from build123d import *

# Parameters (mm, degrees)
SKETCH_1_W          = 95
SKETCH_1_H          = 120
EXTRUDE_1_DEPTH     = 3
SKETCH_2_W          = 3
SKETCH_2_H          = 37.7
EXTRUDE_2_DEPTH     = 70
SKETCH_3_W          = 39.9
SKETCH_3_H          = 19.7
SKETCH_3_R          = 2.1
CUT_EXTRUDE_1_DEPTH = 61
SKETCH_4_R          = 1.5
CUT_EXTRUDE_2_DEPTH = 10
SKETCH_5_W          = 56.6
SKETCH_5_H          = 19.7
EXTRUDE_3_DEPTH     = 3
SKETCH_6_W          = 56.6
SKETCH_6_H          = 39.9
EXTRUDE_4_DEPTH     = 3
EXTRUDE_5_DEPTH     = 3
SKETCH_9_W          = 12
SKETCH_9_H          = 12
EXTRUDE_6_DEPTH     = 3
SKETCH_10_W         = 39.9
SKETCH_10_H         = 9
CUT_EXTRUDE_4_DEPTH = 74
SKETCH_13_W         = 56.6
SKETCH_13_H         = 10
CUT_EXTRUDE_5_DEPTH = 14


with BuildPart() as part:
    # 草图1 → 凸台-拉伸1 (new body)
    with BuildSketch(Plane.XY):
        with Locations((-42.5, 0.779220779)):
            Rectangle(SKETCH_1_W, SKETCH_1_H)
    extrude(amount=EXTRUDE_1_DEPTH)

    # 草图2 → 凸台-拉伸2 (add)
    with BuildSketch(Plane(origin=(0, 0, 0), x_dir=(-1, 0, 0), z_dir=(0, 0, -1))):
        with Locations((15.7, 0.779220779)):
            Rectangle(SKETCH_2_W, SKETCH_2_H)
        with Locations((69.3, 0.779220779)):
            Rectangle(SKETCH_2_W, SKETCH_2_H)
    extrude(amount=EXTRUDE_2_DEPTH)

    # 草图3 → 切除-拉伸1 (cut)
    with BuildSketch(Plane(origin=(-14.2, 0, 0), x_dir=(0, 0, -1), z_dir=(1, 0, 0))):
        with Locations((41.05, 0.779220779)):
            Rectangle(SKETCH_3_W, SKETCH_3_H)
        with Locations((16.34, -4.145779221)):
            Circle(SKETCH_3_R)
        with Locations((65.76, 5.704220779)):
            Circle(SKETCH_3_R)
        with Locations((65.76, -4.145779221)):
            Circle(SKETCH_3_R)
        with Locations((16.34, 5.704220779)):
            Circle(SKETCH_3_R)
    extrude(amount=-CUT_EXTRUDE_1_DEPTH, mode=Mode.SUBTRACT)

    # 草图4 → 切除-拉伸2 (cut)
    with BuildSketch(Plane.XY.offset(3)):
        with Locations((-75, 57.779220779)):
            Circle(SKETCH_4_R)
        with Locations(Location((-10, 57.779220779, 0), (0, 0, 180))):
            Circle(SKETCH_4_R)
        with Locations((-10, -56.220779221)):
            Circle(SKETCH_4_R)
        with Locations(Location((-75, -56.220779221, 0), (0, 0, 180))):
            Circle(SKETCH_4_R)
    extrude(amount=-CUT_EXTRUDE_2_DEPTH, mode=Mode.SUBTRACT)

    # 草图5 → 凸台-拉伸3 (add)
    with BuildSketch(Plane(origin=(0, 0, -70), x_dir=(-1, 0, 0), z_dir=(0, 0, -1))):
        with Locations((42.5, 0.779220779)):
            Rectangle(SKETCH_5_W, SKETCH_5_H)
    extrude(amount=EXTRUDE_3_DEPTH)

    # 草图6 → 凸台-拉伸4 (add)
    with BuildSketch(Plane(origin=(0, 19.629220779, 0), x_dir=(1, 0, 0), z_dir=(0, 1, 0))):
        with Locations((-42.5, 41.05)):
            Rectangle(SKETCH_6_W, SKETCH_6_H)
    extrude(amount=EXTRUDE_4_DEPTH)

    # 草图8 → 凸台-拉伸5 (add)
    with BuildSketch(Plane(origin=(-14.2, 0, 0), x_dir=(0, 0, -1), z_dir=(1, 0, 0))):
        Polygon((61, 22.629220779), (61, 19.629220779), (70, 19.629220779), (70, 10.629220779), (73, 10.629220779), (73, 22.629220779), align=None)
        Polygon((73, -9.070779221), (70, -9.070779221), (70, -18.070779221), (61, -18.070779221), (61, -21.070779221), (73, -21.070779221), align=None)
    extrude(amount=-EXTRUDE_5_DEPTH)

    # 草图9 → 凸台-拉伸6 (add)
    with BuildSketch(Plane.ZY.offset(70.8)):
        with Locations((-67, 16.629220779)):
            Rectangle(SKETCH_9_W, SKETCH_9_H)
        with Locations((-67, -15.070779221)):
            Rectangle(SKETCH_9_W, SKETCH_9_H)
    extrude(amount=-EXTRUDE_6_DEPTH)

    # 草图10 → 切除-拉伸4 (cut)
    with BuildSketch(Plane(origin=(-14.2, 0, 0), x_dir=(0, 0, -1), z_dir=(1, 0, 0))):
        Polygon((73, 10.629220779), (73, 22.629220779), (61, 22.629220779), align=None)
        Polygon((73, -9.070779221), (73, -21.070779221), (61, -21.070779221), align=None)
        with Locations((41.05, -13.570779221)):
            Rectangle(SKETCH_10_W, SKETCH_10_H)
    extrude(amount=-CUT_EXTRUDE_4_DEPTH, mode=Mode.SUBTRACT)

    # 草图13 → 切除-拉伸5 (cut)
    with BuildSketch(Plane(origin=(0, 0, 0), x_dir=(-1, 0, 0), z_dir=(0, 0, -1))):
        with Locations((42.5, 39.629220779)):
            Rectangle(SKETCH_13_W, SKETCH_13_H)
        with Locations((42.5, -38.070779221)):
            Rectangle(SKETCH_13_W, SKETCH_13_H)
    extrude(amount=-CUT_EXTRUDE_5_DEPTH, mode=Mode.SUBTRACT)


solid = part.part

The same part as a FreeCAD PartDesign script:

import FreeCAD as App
import Part
import Sketcher

V = App.Vector
Q = App.Units.Quantity

doc = App.newDocument("Part")
body = doc.addObject("PartDesign::Body", "Body")

sketch1 = doc.addObject("Sketcher::SketchObject", "Sketch")
body.addObject(sketch1)
sketch1.AttachmentSupport = (doc.XY_Plane, [""])
sketch1.MapMode = "FlatFace"
sketch1.addGeometry(Part.LineSegment(V(-90, 61, 0), V(-90, -59, 0)), False)
sketch1.addGeometry(Part.LineSegment(V(-90, -59, 0), V(5, -59, 0)), False)
sketch1.addGeometry(Part.LineSegment(V(5, -59, 0), V(5, 61, 0)), False)
sketch1.addGeometry(Part.LineSegment(V(5, 61, 0), V(-90, 61, 0)), False)
sketch1.addConstraint(Sketcher.Constraint("Coincident", 0, 2, 1, 1))
sketch1.addConstraint(Sketcher.Constraint("Coincident", 1, 2, 2, 1))
sketch1.addConstraint(Sketcher.Constraint("Coincident", 2, 2, 3, 1))
sketch1.addConstraint(Sketcher.Constraint("Coincident", 3, 2, 0, 1))
sketch1.addConstraint(Sketcher.Constraint("Vertical", 0))
sketch1.addConstraint(Sketcher.Constraint("Horizontal", 1))
sketch1.addConstraint(Sketcher.Constraint("Vertical", 2))
sketch1.addConstraint(Sketcher.Constraint("Horizontal", 3))
sketch1.addConstraint(Sketcher.Constraint("DistanceX", 1, 1, 1, 2, Q("95 mm")))
sketch1.addConstraint(Sketcher.Constraint("DistanceY", 0, 2, 0, 1, Q("120 mm")))
sketch1.addConstraint(Sketcher.Constraint("DistanceX", 0, 2, -1, 1, Q("90 mm")))
sketch1.addConstraint(Sketcher.Constraint("DistanceY", 0, 2, -1, 1, Q("59.220779 mm")))
pad1 = doc.addObject("PartDesign::Pad", "Pad")
body.addObject(pad1)
pad1.Profile = sketch1
pad1.Length = 3

sketch2 = doc.addObject("Sketcher::SketchObject", "Sketch001")
body.addObject(sketch2)
sketch2.AttachmentSupport = (doc.XY_Plane, [""])
sketch2.MapMode = "FlatFace"
sketch2.addGeometry(Part.LineSegment(V(-14.2, 19.6, 0), V(-14.2, -18.1, 0)), False)
sketch2.addGeometry(Part.LineSegment(V(-14.2, -18.1, 0), V(-17.2, -18.1, 0)), False)
sketch2.addGeometry(Part.LineSegment(V(-17.2, -18.1, 0), V(-17.2, 19.6, 0)), False)
sketch2.addGeometry(Part.LineSegment(V(-17.2, 19.6, 0), V(-14.2, 19.6, 0)), False)
sketch2.addGeometry(Part.LineSegment(V(-67.8, 19.6, 0), V(-67.8, -18.1, 0)), False)
sketch2.addGeometry(Part.LineSegment(V(-67.8, -18.1, 0), V(-70.8, -18.1, 0)), False)
sketch2.addGeometry(Part.LineSegment(V(-70.8, -18.1, 0), V(-70.8, 19.6, 0)), False)
sketch2.addGeometry(Part.LineSegment(V(-70.8, 19.6, 0), V(-67.8, 19.6, 0)), False)
sketch2.addConstraint(Sketcher.Constraint("Coincident", 0, 2, 1, 1))
sketch2.addConstraint(Sketcher.Constraint("Coincident", 1, 2, 2, 1))
sketch2.addConstraint(Sketcher.Constraint("Coincident", 2, 2, 3, 1))
sketch2.addConstraint(Sketcher.Constraint("Coincident", 3, 2, 0, 1))
sketch2.addConstraint(Sketcher.Constraint("Coincident", 4, 2, 5, 1))
sketch2.addConstraint(Sketcher.Constraint("Coincident", 5, 2, 6, 1))
sketch2.addConstraint(Sketcher.Constraint("Coincident", 6, 2, 7, 1))
sketch2.addConstraint(Sketcher.Constraint("Coincident", 7, 2, 4, 1))
sketch2.addConstraint(Sketcher.Constraint("Vertical", 0))
sketch2.addConstraint(Sketcher.Constraint("Horizontal", 1))
sketch2.addConstraint(Sketcher.Constraint("Vertical", 2))
sketch2.addConstraint(Sketcher.Constraint("Horizontal", 3))
sketch2.addConstraint(Sketcher.Constraint("Vertical", 4))
sketch2.addConstraint(Sketcher.Constraint("Horizontal", 5))
sketch2.addConstraint(Sketcher.Constraint("Vertical", 6))
sketch2.addConstraint(Sketcher.Constraint("Horizontal", 7))
sketch2.addConstraint(Sketcher.Constraint("Horizontal", 1, 2, 4, 2))
sketch2.addConstraint(Sketcher.Constraint("Horizontal", 3, 2, 6, 2))
sketch2.addConstraint(Sketcher.Constraint("Equal", 3, 5))
sketch2.addConstraint(Sketcher.Constraint("DistanceX", 1, 2, 1, 1, Q("3 mm")))
sketch2.addConstraint(Sketcher.Constraint("DistanceY", 0, 2, 0, 1, Q("37.7 mm")))
sketch2.addConstraint(Sketcher.Constraint("DistanceX", 0, 2, -1, 1, Q("14.2 mm")))
sketch2.addConstraint(Sketcher.Constraint("DistanceX", 4, 2, -1, 1, Q("67.8 mm")))
sketch2.addConstraint(Sketcher.Constraint("DistanceY", 0, 2, -1, 1, Q("18.070779 mm")))
pad2 = doc.addObject("PartDesign::Pad", "Pad001")
body.addObject(pad2)
pad2.Profile = sketch2
pad2.Length = 70
pad2.Reversed = True

sketch3 = doc.addObject("Sketcher::SketchObject", "Sketch002")
body.addObject(sketch3)
sketch3.AttachmentSupport = (doc.YZ_Plane, [""])
sketch3.MapMode = "FlatFace"
sketch3.AttachmentOffset = App.Placement(V(0, 0, -14.2), App.Rotation())
sketch3.addGeometry(Part.LineSegment(V(10.6, -21.1, 0), V(-9.1, -21.1, 0)), False)
sketch3.addGeometry(Part.LineSegment(V(-9.1, -21.1, 0), V(-9.1, -61, 0)), False)
sketch3.addGeometry(Part.LineSegment(V(-9.1, -61, 0), V(10.6, -61, 0)), False)
sketch3.addGeometry(Part.LineSegment(V(10.6, -61, 0), V(10.6, -21.1, 0)), False)
sketch3.addGeometry(Part.Circle(V(-4.1, -16.3, 0), V(0, 0, 1), 2.1), False)
sketch3.addGeometry(Part.Circle(V(5.7, -65.8, 0), V(0, 0, 1), 2.1), False)
sketch3.addGeometry(Part.Circle(V(-4.1, -65.8, 0), V(0, 0, 1), 2.1), False)
sketch3.addGeometry(Part.Circle(V(5.7, -16.3, 0), V(0, 0, 1), 2.1), False)
sketch3.addConstraint(Sketcher.Constraint("Coincident", 0, 2, 1, 1))
sketch3.addConstraint(Sketcher.Constraint("Coincident", 1, 2, 2, 1))
sketch3.addConstraint(Sketcher.Constraint("Coincident", 2, 2, 3, 1))
sketch3.addConstraint(Sketcher.Constraint("Coincident", 3, 2, 0, 1))
sketch3.addConstraint(Sketcher.Constraint("Horizontal", 0))
sketch3.addConstraint(Sketcher.Constraint("Vertical", 1))
sketch3.addConstraint(Sketcher.Constraint("Horizontal", 2))
sketch3.addConstraint(Sketcher.Constraint("Vertical", 3))
sketch3.addConstraint(Sketcher.Constraint("Equal", 4, 5))
sketch3.addConstraint(Sketcher.Constraint("Equal", 5, 6))
sketch3.addConstraint(Sketcher.Constraint("Equal", 6, 7))
sketch3.addConstraint(Sketcher.Constraint("Horizontal", 5, 3, 6, 3))
sketch3.addConstraint(Sketcher.Constraint("Horizontal", 4, 3, 7, 3))
sketch3.addConstraint(Sketcher.Constraint("Vertical", 4, 3, 6, 3))
sketch3.addConstraint(Sketcher.Constraint("Vertical", 5, 3, 7, 3))
sketch3.addConstraint(Sketcher.Constraint("Diameter", 4, Q("4.2 mm")))
sketch3.addConstraint(Sketcher.Constraint("DistanceX", 0, 2, 0, 1, Q("19.7 mm")))
sketch3.addConstraint(Sketcher.Constraint("DistanceY", 1, 2, 1, 1, Q("39.9 mm")))
sketch3.addConstraint(Sketcher.Constraint("DistanceY", 1, 2, -1, 1, Q("61 mm")))
sketch3.addConstraint(Sketcher.Constraint("DistanceY", 4, 3, -1, 1, Q("16.34 mm")))
sketch3.addConstraint(Sketcher.Constraint("DistanceY", 5, 3, -1, 1, Q("65.76 mm")))
sketch3.addConstraint(Sketcher.Constraint("DistanceX", 4, 3, 5, 3, Q("9.85 mm")))
sketch3.addConstraint(Sketcher.Constraint("DistanceX", 0, 2, 4, 3, Q("4.925 mm")))
sketch3.addConstraint(Sketcher.Constraint("DistanceX", 4, 3, -1, 1, Q("4.145779 mm")))
pocket1 = doc.addObject("PartDesign::Pocket", "Pocket")
body.addObject(pocket1)
pocket1.Profile = sketch3
pocket1.Length = 61

sketch4 = doc.addObject("Sketcher::SketchObject", "Sketch003")
body.addObject(sketch4)
sketch4.AttachmentSupport = (doc.XY_Plane, [""])
sketch4.MapMode = "FlatFace"
sketch4.AttachmentOffset = App.Placement(V(0, 0, 3), App.Rotation())
sketch4.addGeometry(Part.Circle(V(-75, 57.8, 0), V(0, 0, 1), 1.5), False)
sketch4.addGeometry(Part.Circle(V(-10, 57.8, 0), V(0, 0, 1), 1.5), False)
sketch4.addGeometry(Part.Circle(V(-10, -56.2, 0), V(0, 0, 1), 1.5), False)
sketch4.addGeometry(Part.Circle(V(-75, -56.2, 0), V(0, 0, 1), 1.5), False)
sketch4.addConstraint(Sketcher.Constraint("Equal", 0, 1))
sketch4.addConstraint(Sketcher.Constraint("Equal", 1, 2))
sketch4.addConstraint(Sketcher.Constraint("Equal", 2, 3))
sketch4.addConstraint(Sketcher.Constraint("Horizontal", 0, 3, 1, 3))
sketch4.addConstraint(Sketcher.Constraint("Horizontal", 2, 3, 3, 3))
sketch4.addConstraint(Sketcher.Constraint("Vertical", 1, 3, 2, 3))
sketch4.addConstraint(Sketcher.Constraint("Vertical", 0, 3, 3, 3))
sketch4.addConstraint(Sketcher.Constraint("Diameter", 0, Q("3 mm")))
sketch4.addConstraint(Sketcher.Constraint("DistanceX", 0, 3, -1, 1, Q("75 mm")))
sketch4.addConstraint(Sketcher.Constraint("DistanceX", 1, 3, -1, 1, Q("10 mm")))
sketch4.addConstraint(Sketcher.Constraint("DistanceY", 2, 3, 1, 3, Q("114 mm")))
sketch4.addConstraint(Sketcher.Constraint("DistanceY", -1, 1, 0, 3, Q("57.779221 mm")))
pocket2 = doc.addObject("PartDesign::Pocket", "Pocket001")
body.addObject(pocket2)
pocket2.Profile = sketch4
pocket2.Length = 10

sketch5 = doc.addObject("Sketcher::SketchObject", "Sketch004")
body.addObject(sketch5)
sketch5.AttachmentSupport = (doc.XY_Plane, [""])
sketch5.MapMode = "FlatFace"
sketch5.AttachmentOffset = App.Placement(V(0, 0, -70), App.Rotation())
sketch5.addGeometry(Part.LineSegment(V(-14, 11, 0), V(-14, -9, 0)), False)
sketch5.addGeometry(Part.LineSegment(V(-14, -9, 0), V(-71, -9, 0)), False)
sketch5.addGeometry(Part.LineSegment(V(-71, -9, 0), V(-71, 11, 0)), False)
sketch5.addGeometry(Part.LineSegment(V(-71, 11, 0), V(-14, 11, 0)), False)
sketch5.addConstraint(Sketcher.Constraint("Coincident", 0, 2, 1, 1))
sketch5.addConstraint(Sketcher.Constraint("Coincident", 1, 2, 2, 1))
sketch5.addConstraint(Sketcher.Constraint("Coincident", 2, 2, 3, 1))
sketch5.addConstraint(Sketcher.Constraint("Coincident", 3, 2, 0, 1))
sketch5.addConstraint(Sketcher.Constraint("Vertical", 0))
sketch5.addConstraint(Sketcher.Constraint("Horizontal", 1))
sketch5.addConstraint(Sketcher.Constraint("Vertical", 2))
sketch5.addConstraint(Sketcher.Constraint("Horizontal", 3))
sketch5.addConstraint(Sketcher.Constraint("DistanceX", 1, 2, 1, 1, Q("56.6 mm")))
sketch5.addConstraint(Sketcher.Constraint("DistanceY", 0, 2, 0, 1, Q("19.7 mm")))
sketch5.addConstraint(Sketcher.Constraint("DistanceX", 0, 2, -1, 1, Q("14.2 mm")))
sketch5.addConstraint(Sketcher.Constraint("DistanceY", 0, 2, -1, 1, Q("9.070779 mm")))
pad3 = doc.addObject("PartDesign::Pad", "Pad002")
body.addObject(pad3)
pad3.Profile = sketch5
pad3.Length = 3
pad3.Reversed = True

sketch6 = doc.addObject("Sketcher::SketchObject", "Sketch005")
body.addObject(sketch6)
sketch6.AttachmentSupport = (doc.XZ_Plane, [""])
sketch6.MapMode = "FlatFace"
sketch6.AttachmentOffset = App.Placement(V(0, 0, -19.629221), App.Rotation())
sketch6.addGeometry(Part.LineSegment(V(-71, -61, 0), V(-71, -21, 0)), False)
sketch6.addGeometry(Part.LineSegment(V(-71, -21, 0), V(-14, -21, 0)), False)
sketch6.addGeometry(Part.LineSegment(V(-14, -21, 0), V(-14, -61, 0)), False)
sketch6.addGeometry(Part.LineSegment(V(-14, -61, 0), V(-71, -61, 0)), False)
sketch6.addConstraint(Sketcher.Constraint("Coincident", 0, 2, 1, 1))
sketch6.addConstraint(Sketcher.Constraint("Coincident", 1, 2, 2, 1))
sketch6.addConstraint(Sketcher.Constraint("Coincident", 2, 2, 3, 1))
sketch6.addConstraint(Sketcher.Constraint("Coincident", 3, 2, 0, 1))
sketch6.addConstraint(Sketcher.Constraint("Vertical", 0))
sketch6.addConstraint(Sketcher.Constraint("Horizontal", 1))
sketch6.addConstraint(Sketcher.Constraint("Vertical", 2))
sketch6.addConstraint(Sketcher.Constraint("Horizontal", 3))
sketch6.addConstraint(Sketcher.Constraint("DistanceX", 1, 1, 1, 2, Q("56.6 mm")))
sketch6.addConstraint(Sketcher.Constraint("DistanceY", 0, 1, 0, 2, Q("39.9 mm")))
sketch6.addConstraint(Sketcher.Constraint("DistanceY", 2, 2, -1, 1, Q("61 mm")))
sketch6.addConstraint(Sketcher.Constraint("DistanceX", 0, 2, -1, 1, Q("70.8 mm")))
pad4 = doc.addObject("PartDesign::Pad", "Pad003")
body.addObject(pad4)
pad4.Profile = sketch6
pad4.Length = 3
pad4.Reversed = True

sketch7 = doc.addObject("Sketcher::SketchObject", "Sketch006")
body.addObject(sketch7)
sketch7.AttachmentSupport = (doc.YZ_Plane, [""])
sketch7.MapMode = "FlatFace"
sketch7.AttachmentOffset = App.Placement(V(0, 0, -14.2), App.Rotation())
sketch7.addGeometry(Part.LineSegment(V(22.6, -61, 0), V(19.6, -61, 0)), False)
sketch7.addGeometry(Part.LineSegment(V(19.6, -61, 0), V(19.6, -70, 0)), False)
sketch7.addGeometry(Part.LineSegment(V(19.6, -70, 0), V(10.6, -70, 0)), False)
sketch7.addGeometry(Part.LineSegment(V(10.6, -70, 0), V(10.6, -73, 0)), False)
sketch7.addGeometry(Part.LineSegment(V(10.6, -73, 0), V(22.6, -73, 0)), False)
sketch7.addGeometry(Part.LineSegment(V(22.6, -73, 0), V(22.6, -61, 0)), False)
sketch7.addGeometry(Part.LineSegment(V(-9.1, -73, 0), V(-9.1, -70, 0)), False)
sketch7.addGeometry(Part.LineSegment(V(-9.1, -70, 0), V(-18.1, -70, 0)), False)
sketch7.addGeometry(Part.LineSegment(V(-18.1, -70, 0), V(-18.1, -61, 0)), False)
sketch7.addGeometry(Part.LineSegment(V(-18.1, -61, 0), V(-21.1, -61, 0)), False)
sketch7.addGeometry(Part.LineSegment(V(-21.1, -61, 0), V(-21.1, -73, 0)), False)
sketch7.addGeometry(Part.LineSegment(V(-21.1, -73, 0), V(-9.1, -73, 0)), False)
sketch7.addConstraint(Sketcher.Constraint("Coincident", 0, 2, 1, 1))
sketch7.addConstraint(Sketcher.Constraint("Coincident", 1, 2, 2, 1))
sketch7.addConstraint(Sketcher.Constraint("Coincident", 2, 2, 3, 1))
sketch7.addConstraint(Sketcher.Constraint("Coincident", 3, 2, 4, 1))
sketch7.addConstraint(Sketcher.Constraint("Coincident", 4, 2, 5, 1))
sketch7.addConstraint(Sketcher.Constraint("Coincident", 5, 2, 0, 1))
sketch7.addConstraint(Sketcher.Constraint("Coincident", 6, 2, 7, 1))
sketch7.addConstraint(Sketcher.Constraint("Coincident", 7, 2, 8, 1))
sketch7.addConstraint(Sketcher.Constraint("Coincident", 8, 2, 9, 1))
sketch7.addConstraint(Sketcher.Constraint("Coincident", 9, 2, 10, 1))
sketch7.addConstraint(Sketcher.Constraint("Coincident", 10, 2, 11, 1))
sketch7.addConstraint(Sketcher.Constraint("Coincident", 11, 2, 6, 1))
sketch7.addConstraint(Sketcher.Constraint("Horizontal", 0))
sketch7.addConstraint(Sketcher.Constraint("Vertical", 1))
sketch7.addConstraint(Sketcher.Constraint("Horizontal", 2))
sketch7.addConstraint(Sketcher.Constraint("Vertical", 3))
sketch7.addConstraint(Sketcher.Constraint("Horizontal", 4))
sketch7.addConstraint(Sketcher.Constraint("Vertical", 5))
sketch7.addConstraint(Sketcher.Constraint("Vertical", 6))
sketch7.addConstraint(Sketcher.Constraint("Horizontal", 7))
sketch7.addConstraint(Sketcher.Constraint("Vertical", 8))
sketch7.addConstraint(Sketcher.Constraint("Horizontal", 9))
sketch7.addConstraint(Sketcher.Constraint("Vertical", 10))
sketch7.addConstraint(Sketcher.Constraint("Horizontal", 11))
sketch7.addConstraint(Sketcher.Constraint("Horizontal", 2, 2, 6, 2))
sketch7.addConstraint(Sketcher.Constraint("Horizontal", 5, 2, 8, 2))
sketch7.addConstraint(Sketcher.Constraint("Horizontal", 4, 2, 10, 2))
sketch7.addConstraint(Sketcher.Constraint("Equal", 2, 7))
sketch7.addConstraint(Sketcher.Constraint("Equal", 0, 9))
sketch7.addConstraint(Sketcher.Constraint("Equal", 7, 1))
sketch7.addConstraint(Sketcher.Constraint("Equal", 9, 3))
sketch7.addConstraint(Sketcher.Constraint("DistanceX", 0, 2, 0, 1, Q("3 mm")))
sketch7.addConstraint(Sketcher.Constraint("DistanceX", 2, 2, 2, 1, Q("9 mm")))
sketch7.addConstraint(Sketcher.Constraint("DistanceY", 0, 2, -1, 1, Q("61 mm")))
sketch7.addConstraint(Sketcher.Constraint("DistanceX", 6, 2, 2, 2, Q("19.7 mm")))
sketch7.addConstraint(Sketcher.Constraint("DistanceX", -1, 1, 0, 2, Q("19.629221 mm")))
pad5 = doc.addObject("PartDesign::Pad", "Pad004")
body.addObject(pad5)
pad5.Profile = sketch7
pad5.Length = 3
pad5.Reversed = True

sketch8 = doc.addObject("Sketcher::SketchObject", "Sketch007")
body.addObject(sketch8)
sketch8.AttachmentSupport = (doc.YZ_Plane, [""])
sketch8.MapMode = "FlatFace"
sketch8.AttachmentOffset = App.Placement(V(0, 0, -70.8), App.Rotation())
sketch8.addGeometry(Part.LineSegment(V(23, -73, 0), V(11, -73, 0)), False)
sketch8.addGeometry(Part.LineSegment(V(11, -73, 0), V(11, -61, 0)), False)
sketch8.addGeometry(Part.LineSegment(V(11, -61, 0), V(23, -61, 0)), False)
sketch8.addGeometry(Part.LineSegment(V(23, -61, 0), V(23, -73, 0)), False)
sketch8.addGeometry(Part.LineSegment(V(-9, -73, 0), V(-21, -73, 0)), False)
sketch8.addGeometry(Part.LineSegment(V(-21, -73, 0), V(-21, -61, 0)), False)
sketch8.addGeometry(Part.LineSegment(V(-21, -61, 0), V(-9, -61, 0)), False)
sketch8.addGeometry(Part.LineSegment(V(-9, -61, 0), V(-9, -73, 0)), False)
sketch8.addConstraint(Sketcher.Constraint("Coincident", 0, 2, 1, 1))
sketch8.addConstraint(Sketcher.Constraint("Coincident", 1, 2, 2, 1))
sketch8.addConstraint(Sketcher.Constraint("Coincident", 2, 2, 3, 1))
sketch8.addConstraint(Sketcher.Constraint("Coincident", 3, 2, 0, 1))
sketch8.addConstraint(Sketcher.Constraint("Coincident", 4, 2, 5, 1))
sketch8.addConstraint(Sketcher.Constraint("Coincident", 5, 2, 6, 1))
sketch8.addConstraint(Sketcher.Constraint("Coincident", 6, 2, 7, 1))
sketch8.addConstraint(Sketcher.Constraint("Coincident", 7, 2, 4, 1))
sketch8.addConstraint(Sketcher.Constraint("Horizontal", 0))
sketch8.addConstraint(Sketcher.Constraint("Vertical", 1))
sketch8.addConstraint(Sketcher.Constraint("Horizontal", 2))
sketch8.addConstraint(Sketcher.Constraint("Vertical", 3))
sketch8.addConstraint(Sketcher.Constraint("Horizontal", 4))
sketch8.addConstraint(Sketcher.Constraint("Vertical", 5))
sketch8.addConstraint(Sketcher.Constraint("Horizontal", 6))
sketch8.addConstraint(Sketcher.Constraint("Vertical", 7))
sketch8.addConstraint(Sketcher.Constraint("Horizontal", 3, 2, 4, 2))
sketch8.addConstraint(Sketcher.Constraint("Horizontal", 2, 2, 5, 2))
sketch8.addConstraint(Sketcher.Constraint("Equal", 2, 4))
sketch8.addConstraint(Sketcher.Constraint("Equal", 6, 1))
sketch8.addConstraint(Sketcher.Constraint("DistanceX", 0, 2, 0, 1, Q("12 mm")))
sketch8.addConstraint(Sketcher.Constraint("DistanceY", 0, 2, -1, 1, Q("73 mm")))
sketch8.addConstraint(Sketcher.Constraint("DistanceX", 4, 2, 0, 2, Q("31.7 mm")))
sketch8.addConstraint(Sketcher.Constraint("DistanceX", -1, 1, 0, 2, Q("10.629221 mm")))
pad6 = doc.addObject("PartDesign::Pad", "Pad005")
body.addObject(pad6)
pad6.Profile = sketch8
pad6.Length = 3

sketch9 = doc.addObject("Sketcher::SketchObject", "Sketch008")
body.addObject(sketch9)
sketch9.AttachmentSupport = (doc.YZ_Plane, [""])
sketch9.MapMode = "FlatFace"
sketch9.AttachmentOffset = App.Placement(V(0, 0, -14.2), App.Rotation())
sketch9.addGeometry(Part.LineSegment(V(11, -73, 0), V(23, -73, 0)), False)
sketch9.addGeometry(Part.LineSegment(V(23, -73, 0), V(23, -61, 0)), False)
sketch9.addGeometry(Part.LineSegment(V(23, -61, 0), V(11, -73, 0)), False)
sketch9.addGeometry(Part.LineSegment(V(-21, -73, 0), V(-9, -73, 0)), False)
sketch9.addGeometry(Part.LineSegment(V(-9, -73, 0), V(-21, -61, 0)), False)
sketch9.addGeometry(Part.LineSegment(V(-21, -61, 0), V(-21, -73, 0)), False)
sketch9.addGeometry(Part.LineSegment(V(-9, -21, 0), V(-18, -21, 0)), False)
sketch9.addGeometry(Part.LineSegment(V(-18, -21, 0), V(-18, -61, 0)), False)
sketch9.addGeometry(Part.LineSegment(V(-18, -61, 0), V(-9, -61, 0)), False)
sketch9.addGeometry(Part.LineSegment(V(-9, -61, 0), V(-9, -21, 0)), False)
sketch9.addConstraint(Sketcher.Constraint("Coincident", 0, 2, 1, 1))
sketch9.addConstraint(Sketcher.Constraint("Coincident", 1, 2, 2, 1))
sketch9.addConstraint(Sketcher.Constraint("Coincident", 2, 2, 0, 1))
sketch9.addConstraint(Sketcher.Constraint("Coincident", 3, 2, 4, 1))
sketch9.addConstraint(Sketcher.Constraint("Coincident", 4, 2, 5, 1))
sketch9.addConstraint(Sketcher.Constraint("Coincident", 5, 2, 3, 1))
sketch9.addConstraint(Sketcher.Constraint("Coincident", 6, 2, 7, 1))
sketch9.addConstraint(Sketcher.Constraint("Coincident", 7, 2, 8, 1))
sketch9.addConstraint(Sketcher.Constraint("Coincident", 8, 2, 9, 1))
sketch9.addConstraint(Sketcher.Constraint("Coincident", 9, 2, 6, 1))
sketch9.addConstraint(Sketcher.Constraint("Horizontal", 0))
sketch9.addConstraint(Sketcher.Constraint("Vertical", 1))
sketch9.addConstraint(Sketcher.Constraint("Horizontal", 3))
sketch9.addConstraint(Sketcher.Constraint("Vertical", 5))
sketch9.addConstraint(Sketcher.Constraint("Horizontal", 6))
sketch9.addConstraint(Sketcher.Constraint("Vertical", 7))
sketch9.addConstraint(Sketcher.Constraint("Horizontal", 8))
sketch9.addConstraint(Sketcher.Constraint("Vertical", 9))
sketch9.addConstraint(Sketcher.Constraint("Perpendicular", 2, 4))
sketch9.addConstraint(Sketcher.Constraint("Horizontal", 2, 2, 3, 2))
sketch9.addConstraint(Sketcher.Constraint("Horizontal", 1, 2, 4, 2))
sketch9.addConstraint(Sketcher.Constraint("Horizontal", 4, 2, 7, 2))
sketch9.addConstraint(Sketcher.Constraint("Vertical", 3, 2, 8, 2))
sketch9.addConstraint(Sketcher.Constraint("Equal", 0, 3))
sketch9.addConstraint(Sketcher.Constraint("DistanceX", 0, 1, 0, 2, Q("12 mm")))
sketch9.addConstraint(Sketcher.Constraint("DistanceX", 6, 2, 6, 1, Q("9 mm")))
sketch9.addConstraint(Sketcher.Constraint("DistanceY", 7, 2, 7, 1, Q("39.9 mm")))
sketch9.addConstraint(Sketcher.Constraint("DistanceY", 0, 2, -1, 1, Q("73 mm")))
sketch9.addConstraint(Sketcher.Constraint("DistanceX", 3, 2, 2, 2, Q("19.7 mm")))
sketch9.addConstraint(Sketcher.Constraint("DistanceX", -1, 1, 0, 2, Q("22.629221 mm")))
pocket3 = doc.addObject("PartDesign::Pocket", "Pocket002")
body.addObject(pocket3)
pocket3.Profile = sketch9
pocket3.Length = 74

sketch10 = doc.addObject("Sketcher::SketchObject", "Sketch009")
body.addObject(sketch10)
sketch10.AttachmentSupport = (doc.XY_Plane, [""])
sketch10.MapMode = "FlatFace"
sketch10.addGeometry(Part.LineSegment(V(-14, 45, 0), V(-14, 35, 0)), False)
sketch10.addGeometry(Part.LineSegment(V(-14, 35, 0), V(-71, 35, 0)), False)
sketch10.addGeometry(Part.LineSegment(V(-71, 35, 0), V(-71, 45, 0)), False)
sketch10.addGeometry(Part.LineSegment(V(-71, 45, 0), V(-14, 45, 0)), False)
sketch10.addGeometry(Part.LineSegment(V(-14, -33, 0), V(-14, -43, 0)), False)
sketch10.addGeometry(Part.LineSegment(V(-14, -43, 0), V(-71, -43, 0)), False)
sketch10.addGeometry(Part.LineSegment(V(-71, -43, 0), V(-71, -33, 0)), False)
sketch10.addGeometry(Part.LineSegment(V(-71, -33, 0), V(-14, -33, 0)), False)
sketch10.addConstraint(Sketcher.Constraint("Coincident", 0, 2, 1, 1))
sketch10.addConstraint(Sketcher.Constraint("Coincident", 1, 2, 2, 1))
sketch10.addConstraint(Sketcher.Constraint("Coincident", 2, 2, 3, 1))
sketch10.addConstraint(Sketcher.Constraint("Coincident", 3, 2, 0, 1))
sketch10.addConstraint(Sketcher.Constraint("Coincident", 4, 2, 5, 1))
sketch10.addConstraint(Sketcher.Constraint("Coincident", 5, 2, 6, 1))
sketch10.addConstraint(Sketcher.Constraint("Coincident", 6, 2, 7, 1))
sketch10.addConstraint(Sketcher.Constraint("Coincident", 7, 2, 4, 1))
sketch10.addConstraint(Sketcher.Constraint("Vertical", 0))
sketch10.addConstraint(Sketcher.Constraint("Horizontal", 1))
sketch10.addConstraint(Sketcher.Constraint("Vertical", 2))
sketch10.addConstraint(Sketcher.Constraint("Horizontal", 3))
sketch10.addConstraint(Sketcher.Constraint("Vertical", 4))
sketch10.addConstraint(Sketcher.Constraint("Horizontal", 5))
sketch10.addConstraint(Sketcher.Constraint("Vertical", 6))
sketch10.addConstraint(Sketcher.Constraint("Horizontal", 7))
sketch10.addConstraint(Sketcher.Constraint("Vertical", 3, 2, 4, 2))
sketch10.addConstraint(Sketcher.Constraint("Vertical", 2, 2, 5, 2))
sketch10.addConstraint(Sketcher.Constraint("Equal", 2, 4))
sketch10.addConstraint(Sketcher.Constraint("DistanceY", 0, 2, 0, 1, Q("10 mm")))
sketch10.addConstraint(Sketcher.Constraint("DistanceX", 1, 2, 1, 1, Q("56.6 mm")))
sketch10.addConstraint(Sketcher.Constraint("DistanceX", 0, 2, -1, 1, Q("14.2 mm")))
sketch10.addConstraint(Sketcher.Constraint("DistanceY", 4, 2, 0, 2, Q("77.7 mm")))
sketch10.addConstraint(Sketcher.Constraint("DistanceY", -1, 1, 0, 2, Q("34.629221 mm")))
pocket4 = doc.addObject("PartDesign::Pocket", "Pocket003")
body.addObject(pocket4)
pocket4.Profile = sketch10
pocket4.Length = 14
pocket4.Reversed = True

doc.recompute()
